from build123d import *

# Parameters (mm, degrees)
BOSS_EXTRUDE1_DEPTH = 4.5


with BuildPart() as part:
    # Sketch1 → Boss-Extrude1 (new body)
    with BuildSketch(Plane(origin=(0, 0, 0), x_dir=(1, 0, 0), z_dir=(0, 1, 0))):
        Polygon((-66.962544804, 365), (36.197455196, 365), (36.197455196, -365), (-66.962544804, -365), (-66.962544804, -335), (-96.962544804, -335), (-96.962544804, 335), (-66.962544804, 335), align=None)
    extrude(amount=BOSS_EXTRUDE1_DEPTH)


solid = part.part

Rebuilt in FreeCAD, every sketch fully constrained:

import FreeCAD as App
import Part
import Sketcher
from FreeCAD import Vector


def add_polygon(sketch, points):
    """Adds a closed chain of lines whose ends are joined by coincident constraints."""
    first, n = sketch.GeometryCount, len(points)
    for a, b in zip(points, points[1:] + points[:1]):
        sketch.addGeometry(Part.LineSegment(App.Vector(*a, 0), App.Vector(*b, 0)), False)
    for i in range(n):
        sketch.addConstraint(Sketcher.Constraint("Coincident", first + i, 2, first + (i + 1) % n, 1))

doc = App.newDocument("Part")
body = doc.addObject("PartDesign::Body", "Body")

# Sketch on XZ plane
sketch1 = body.newObject("Sketcher::SketchObject", "Sketch")
sketch1.AttachmentSupport = (doc.getObject("XZ_Plane"), [""])
sketch1.MapMode = "FlatFace"
add_polygon(sketch1, [(36.197455, -365), (-66.962545, -365), (-66.962545, -335), (-96.962545, -335), (-96.962545, 335), (-66.962545, 335), (-66.962545, 365), (36.197455, 365)])  # lines 0-7
sketch1.addConstraint([
    Sketcher.Constraint("Horizontal", 0),
    Sketcher.Constraint("Vertical", 1),
    Sketcher.Constraint("Horizontal", 2),
    Sketcher.Constraint("Vertical", 3),
    Sketcher.Constraint("Horizontal", 4),
    Sketcher.Constraint("Vertical", 5),
    Sketcher.Constraint("Horizontal", 6),
    Sketcher.Constraint("Vertical", 7),
    Sketcher.Constraint("Symmetric", 1, 2, 4, 2, -1),
    Sketcher.Constraint("Equal", 4, 1),
    Sketcher.Constraint("Equal", 1, 5),
    Sketcher.Constraint("DistanceX", 2, 2, 2, 1, 30.0),
    Sketcher.Constraint("DistanceY", 3, 1, 3, 2, 670.0),
    Sketcher.Constraint("DistanceX", 0, 2, 0, 1, 103.16),
    Sketcher.Constraint("DistanceX", 0, 2, -1, 1, 66.962545),
])
pad1 = body.newObject("PartDesign::Pad", "Pad")
pad1.Profile = sketch1
pad1.Length = 4.5
pad1.Reversed = True

doc.recompute()
